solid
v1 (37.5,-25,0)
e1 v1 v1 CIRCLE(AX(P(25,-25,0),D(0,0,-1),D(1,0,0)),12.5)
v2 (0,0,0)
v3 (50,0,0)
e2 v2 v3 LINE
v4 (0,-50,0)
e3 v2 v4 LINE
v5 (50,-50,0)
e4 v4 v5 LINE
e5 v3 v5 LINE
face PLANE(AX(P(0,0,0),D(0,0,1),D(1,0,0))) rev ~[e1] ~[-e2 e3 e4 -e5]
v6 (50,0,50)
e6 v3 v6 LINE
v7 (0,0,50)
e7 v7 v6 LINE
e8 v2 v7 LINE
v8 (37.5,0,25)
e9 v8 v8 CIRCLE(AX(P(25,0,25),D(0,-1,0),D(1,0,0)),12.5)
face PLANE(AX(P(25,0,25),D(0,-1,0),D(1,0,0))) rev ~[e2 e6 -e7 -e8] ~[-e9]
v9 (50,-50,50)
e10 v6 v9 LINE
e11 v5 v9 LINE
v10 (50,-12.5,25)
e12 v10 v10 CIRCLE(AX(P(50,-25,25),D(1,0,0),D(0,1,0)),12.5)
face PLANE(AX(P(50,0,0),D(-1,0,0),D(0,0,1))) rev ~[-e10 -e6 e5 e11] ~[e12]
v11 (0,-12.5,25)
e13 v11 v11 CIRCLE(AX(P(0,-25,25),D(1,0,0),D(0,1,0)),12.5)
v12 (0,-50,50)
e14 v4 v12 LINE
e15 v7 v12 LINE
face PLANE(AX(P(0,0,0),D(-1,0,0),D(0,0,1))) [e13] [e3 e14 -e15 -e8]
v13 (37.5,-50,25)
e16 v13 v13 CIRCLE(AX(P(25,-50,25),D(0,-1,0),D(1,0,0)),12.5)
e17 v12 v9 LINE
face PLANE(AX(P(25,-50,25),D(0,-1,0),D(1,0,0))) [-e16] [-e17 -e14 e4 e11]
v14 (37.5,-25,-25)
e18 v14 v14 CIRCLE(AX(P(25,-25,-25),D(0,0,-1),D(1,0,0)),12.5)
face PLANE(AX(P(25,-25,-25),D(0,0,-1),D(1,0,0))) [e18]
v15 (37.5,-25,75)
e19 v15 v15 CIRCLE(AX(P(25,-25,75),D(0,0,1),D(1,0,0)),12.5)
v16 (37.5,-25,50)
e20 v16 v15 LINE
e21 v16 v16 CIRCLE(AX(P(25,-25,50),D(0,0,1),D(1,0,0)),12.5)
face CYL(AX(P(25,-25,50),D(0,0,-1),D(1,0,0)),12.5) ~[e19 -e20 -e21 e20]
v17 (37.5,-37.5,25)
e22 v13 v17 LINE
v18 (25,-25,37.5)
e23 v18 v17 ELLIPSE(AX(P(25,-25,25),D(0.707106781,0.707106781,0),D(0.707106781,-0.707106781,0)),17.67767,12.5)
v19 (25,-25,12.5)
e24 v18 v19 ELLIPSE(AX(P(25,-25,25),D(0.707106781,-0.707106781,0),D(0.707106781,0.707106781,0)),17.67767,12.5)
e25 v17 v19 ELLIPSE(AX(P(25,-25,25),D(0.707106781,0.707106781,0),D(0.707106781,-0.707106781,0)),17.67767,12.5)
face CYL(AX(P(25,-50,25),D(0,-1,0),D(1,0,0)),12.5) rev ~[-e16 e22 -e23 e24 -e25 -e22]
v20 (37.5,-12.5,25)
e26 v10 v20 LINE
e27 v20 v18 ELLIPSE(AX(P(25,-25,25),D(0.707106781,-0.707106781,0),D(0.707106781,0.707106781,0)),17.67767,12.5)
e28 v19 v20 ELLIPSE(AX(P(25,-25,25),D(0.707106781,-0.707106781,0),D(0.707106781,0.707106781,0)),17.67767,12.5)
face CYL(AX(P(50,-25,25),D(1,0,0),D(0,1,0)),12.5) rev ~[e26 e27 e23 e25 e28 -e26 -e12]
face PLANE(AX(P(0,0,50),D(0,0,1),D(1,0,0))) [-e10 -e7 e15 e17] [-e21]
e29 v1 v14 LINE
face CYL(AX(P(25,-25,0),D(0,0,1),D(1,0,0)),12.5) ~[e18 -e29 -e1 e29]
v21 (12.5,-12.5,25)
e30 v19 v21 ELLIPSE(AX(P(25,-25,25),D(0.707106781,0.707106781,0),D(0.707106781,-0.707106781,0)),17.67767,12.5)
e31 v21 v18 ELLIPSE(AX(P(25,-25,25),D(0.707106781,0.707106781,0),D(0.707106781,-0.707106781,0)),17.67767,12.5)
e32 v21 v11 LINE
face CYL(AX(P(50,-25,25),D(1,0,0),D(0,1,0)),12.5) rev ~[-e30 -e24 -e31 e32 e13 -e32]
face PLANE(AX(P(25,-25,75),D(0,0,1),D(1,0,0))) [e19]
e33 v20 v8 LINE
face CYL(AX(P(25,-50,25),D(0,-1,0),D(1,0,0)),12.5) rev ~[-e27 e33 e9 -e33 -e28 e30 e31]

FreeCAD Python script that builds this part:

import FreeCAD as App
import Part
import Sketcher
from FreeCAD import Vector

doc = App.newDocument("Part")
body = doc.addObject("PartDesign::Body", "Body")

sketch1 = body.newObject("Sketcher::SketchObject", "Sketch")
sketch1.AttachmentSupport = (doc.getObject("XZ_Plane"), [""])
sketch1.MapMode = "FlatFace"
sketch1.addGeometry([
    Part.LineSegment(Vector(0, 50, 0), Vector(0, 0, 0)),
    Part.LineSegment(Vector(0, 0, 0), Vector(50, 0, 0)),
    Part.LineSegment(Vector(50, 0, 0), Vector(50, 50, 0)),
    Part.LineSegment(Vector(50, 50, 0), Vector(0, 50, 0)),
], False)
sketch1.addConstraint([
    Sketcher.Constraint("Coincident", 0, 2, 1, 1),
    Sketcher.Constraint("Coincident", 1, 2, 2, 1),
    Sketcher.Constraint("Coincident", 2, 2, 3, 1),
    Sketcher.Constraint("Coincident", 3, 2, 0, 1),
    Sketcher.Constraint("Vertical", 0),
    Sketcher.Constraint("Horizontal", 1),
    Sketcher.Constraint("Vertical", 2),
    Sketcher.Constraint("Horizontal", 3),
    Sketcher.Constraint("Coincident", 0, 2, -1, 1),
    Sketcher.Constraint("Equal", 3, 0),
    Sketcher.Constraint("DistanceX", 1, 1, 1, 2, 50.0),
])
pad1 = body.newObject("PartDesign::Pad", "Pad")
pad1.Profile = sketch1
pad1.Length = 50

sketch2 = body.newObject("Sketcher::SketchObject", "Sketch001")
sketch2.AttachmentSupport = (doc.getObject("XY_Plane"), [""])
sketch2.MapMode = "FlatFace"
sketch2.AttachmentOffset = App.Placement(Vector(0, 0, 50), App.Rotation())
sketch2.addGeometry(Part.Circle(Vector(25, -25, 0), Vector(0, 0, 1), 12.5), False)
sketch2.addConstraint([
    Sketcher.Constraint("Diameter", 0, 25.0),
    Sketcher.Constraint("DistanceX", -1, 1, 0, 3, 25.0),
    Sketcher.Constraint("DistanceY", 0, 3, -1, 1, 25.0),
])
pad2 = body.newObject("PartDesign::Pad", "Pad001")
pad2.Profile = sketch2
pad2.Length = 25

sketch3 = body.newObject("Sketcher::SketchObject", "Sketch002")
sketch3.AttachmentSupport = (doc.getObject("YZ_Plane"), [""])
sketch3.MapMode = "FlatFace"
sketch3.AttachmentOffset = App.Placement(Vector(0, 0, 50), App.Rotation())
sketch3.addGeometry(Part.Circle(Vector(-25, 25, 0), Vector(0, 0, 1), 12.5), False)
sketch3.addConstraint([
    Sketcher.Constraint("Diameter", 0, 25.0),
    Sketcher.Constraint("DistanceX", 0, 3, -1, 1, 25.0),
    Sketcher.Constraint("DistanceY", -1, 1, 0, 3, 25.0),
])
pocket1 = body.newObject("PartDesign::Pocket", "Pocket")
pocket1.Profile = sketch3
pocket1.Length = 50

sketch4 = body.newObject("Sketcher::SketchObject", "Sketch003")
sketch4.AttachmentSupport = (doc.getObject("XZ_Plane"), [""])
sketch4.MapMode = "FlatFace"
sketch4.AttachmentOffset = App.Placement(Vector(0, 0, 50), App.Rotation())
sketch4.addGeometry(Part.Circle(Vector(25, 25, 0), Vector(0, 0, 1), 12.5), False)
sketch4.addConstraint([
    Sketcher.Constraint("Diameter", 0, 25.0),
    Sketcher.Constraint("DistanceX", -1, 1, 0, 3, 25.0),
    Sketcher.Constraint("DistanceY", -1, 1, 0, 3, 25.0),
])
pocket2 = body.newObject("PartDesign::Pocket", "Pocket001")
pocket2.Profile = sketch4
pocket2.Length = 50

sketch5 = body.newObject("Sketcher::SketchObject", "Sketch004")
sketch5.AttachmentSupport = (doc.getObject("XY_Plane"), [""])
sketch5.MapMode = "FlatFace"
sketch5.addGeometry(Part.Circle(Vector(25, -25, 0), Vector(0, 0, 1), 12.5), False)
sketch5.addConstraint([
    Sketcher.Constraint("Diameter", 0, 25.0),
    Sketcher.Constraint("DistanceX", -1, 1, 0, 3, 25.0),
    Sketcher.Constraint("DistanceY", 0, 3, -1, 1, 25.0),
])
pad3 = body.newObject("PartDesign::Pad", "Pad002")
pad3.Profile = sketch5
pad3.Length = 25
pad3.Reversed = True

doc.recompute()
